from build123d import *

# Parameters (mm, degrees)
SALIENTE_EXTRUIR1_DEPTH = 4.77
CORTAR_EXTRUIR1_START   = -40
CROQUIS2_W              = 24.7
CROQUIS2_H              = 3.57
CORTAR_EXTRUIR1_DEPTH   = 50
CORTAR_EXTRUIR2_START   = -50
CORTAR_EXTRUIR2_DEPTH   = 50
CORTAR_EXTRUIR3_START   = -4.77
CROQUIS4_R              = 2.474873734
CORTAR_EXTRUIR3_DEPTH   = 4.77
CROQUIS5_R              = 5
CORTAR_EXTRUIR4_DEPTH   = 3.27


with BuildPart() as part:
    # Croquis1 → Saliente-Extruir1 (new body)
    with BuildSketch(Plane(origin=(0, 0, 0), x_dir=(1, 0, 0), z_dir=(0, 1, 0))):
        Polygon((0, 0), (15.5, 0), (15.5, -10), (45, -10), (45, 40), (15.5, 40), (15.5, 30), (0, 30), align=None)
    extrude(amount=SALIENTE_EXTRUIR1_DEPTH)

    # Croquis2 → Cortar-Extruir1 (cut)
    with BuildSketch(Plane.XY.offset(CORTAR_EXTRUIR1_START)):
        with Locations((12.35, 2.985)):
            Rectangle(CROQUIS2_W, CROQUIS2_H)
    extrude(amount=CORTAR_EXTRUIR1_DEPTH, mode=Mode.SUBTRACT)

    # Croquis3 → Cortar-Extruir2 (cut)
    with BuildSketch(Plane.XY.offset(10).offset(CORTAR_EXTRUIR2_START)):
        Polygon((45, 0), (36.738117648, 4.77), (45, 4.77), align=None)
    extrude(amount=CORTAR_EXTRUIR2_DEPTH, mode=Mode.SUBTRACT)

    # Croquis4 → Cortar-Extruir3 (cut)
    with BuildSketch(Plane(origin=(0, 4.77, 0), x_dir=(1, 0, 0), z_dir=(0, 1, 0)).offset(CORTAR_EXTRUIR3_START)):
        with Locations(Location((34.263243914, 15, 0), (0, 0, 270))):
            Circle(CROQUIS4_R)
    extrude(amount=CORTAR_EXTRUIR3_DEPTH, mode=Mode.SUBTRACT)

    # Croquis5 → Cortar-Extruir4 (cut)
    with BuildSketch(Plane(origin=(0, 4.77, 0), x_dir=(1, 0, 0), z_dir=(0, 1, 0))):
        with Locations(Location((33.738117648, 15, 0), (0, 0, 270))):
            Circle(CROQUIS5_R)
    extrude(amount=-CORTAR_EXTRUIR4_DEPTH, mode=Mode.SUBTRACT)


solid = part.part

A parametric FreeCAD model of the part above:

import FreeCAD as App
import Part
import Sketcher

V = App.Vector
Q = App.Units.Quantity

doc = App.newDocument("Part")
body = doc.addObject("PartDesign::Body", "Body")

sketch1 = doc.addObject("Sketcher::SketchObject", "Sketch")
body.addObject(sketch1)
sketch1.AttachmentSupport = (doc.XZ_Plane, [""])
sketch1.MapMode = "FlatFace"
sketch1.addGeometry([
    Part.LineSegment(V(0, 0, 0), V(16, 0, 0)),
    Part.LineSegment(V(16, 0, 0), V(16, 10, 0)),
    Part.LineSegment(V(16, 10, 0), V(45, 10, 0)),
    Part.LineSegment(V(45, 10, 0), V(45, -40, 0)),
    Part.LineSegment(V(45, -40, 0), V(16, -40, 0)),
    Part.LineSegment(V(16, -40, 0), V(16, -30, 0)),
    Part.LineSegment(V(16, -30, 0), V(0, -30, 0)),
    Part.LineSegment(V(0, -30, 0), V(0, 0, 0)),
], False)
sketch1.addConstraint([
    Sketcher.Constraint("Coincident", 0, 2, 1, 1),
    Sketcher.Constraint("Coincident", 1, 2, 2, 1),
    Sketcher.Constraint("Coincident", 2, 2, 3, 1),
    Sketcher.Constraint("Coincident", 3, 2, 4, 1),
    Sketcher.Constraint("Coincident", 4, 2, 5, 1),
    Sketcher.Constraint("Coincident", 5, 2, 6, 1),
    Sketcher.Constraint("Coincident", 6, 2, 7, 1),
    Sketcher.Constraint("Coincident", 7, 2, 0, 1),
    Sketcher.Constraint("Horizontal", 0),
    Sketcher.Constraint("Vertical", 1),
    Sketcher.Constraint("Horizontal", 2),
    Sketcher.Constraint("Vertical", 3),
    Sketcher.Constraint("Horizontal", 4),
    Sketcher.Constraint("Vertical", 5),
    Sketcher.Constraint("Horizontal", 6),
    Sketcher.Constraint("Vertical", 7),
    Sketcher.Constraint("Coincident", 7, 2, -1, 1),
    Sketcher.Constraint("Vertical", 1, 2, 4, 2),
    Sketcher.Constraint("Equal", 1, 5),
    Sketcher.Constraint("DistanceY", 1, 1, 1, 2, 10.0),
    Sketcher.Constraint("DistanceY", 3, 2, 3, 1, 50.0),
    Sketcher.Constraint("DistanceX", 0, 1, 0, 2, 15.5),
    Sketcher.Constraint("DistanceX", 2, 1, 2, 2, 29.5),
])
pad1 = doc.addObject("PartDesign::Pad", "Pad")
body.addObject(pad1)
pad1.Profile = sketch1
pad1.Length = 4.77
pad1.Reversed = True

sketch2 = doc.addObject("Sketcher::SketchObject", "Sketch001")
body.addObject(sketch2)
sketch2.AttachmentSupport = (doc.XY_Plane, [""])
sketch2.MapMode = "FlatFace"
sketch2.AttachmentOffset = App.Placement(V(0, 0, -40), App.Rotation())
sketch2.addGeometry([
    Part.LineSegment(V(0, 4.8, 0), V(0, 1.2, 0)),
    Part.LineSegment(V(0, 1.2, 0), V(24.7, 1.2, 0)),
    Part.LineSegment(V(24.7, 1.2, 0), V(24.7, 4.8, 0)),
    Part.LineSegment(V(24.7, 4.8, 0), V(0, 4.8, 0)),
], False)
sketch2.addConstraint([
    Sketcher.Constraint("Coincident", 0, 2, 1, 1),
    Sketcher.Constraint("Coincident", 1, 2, 2, 1),
    Sketcher.Constraint("Coincident", 2, 2, 3, 1),
    Sketcher.Constraint("Coincident", 3, 2, 0, 1),
    Sketcher.Constraint("Vertical", 0),
    Sketcher.Constraint("Horizontal", 1),
    Sketcher.Constraint("Vertical", 2),
    Sketcher.Constraint("Horizontal", 3),
    Sketcher.Constraint("PointOnObject", 0, 2, -2),
    Sketcher.Constraint("DistanceX", 1, 1, 1, 2, 24.7),
    Sketcher.Constraint("DistanceY", 0, 2, 0, 1, 3.57),
    Sketcher.Constraint("DistanceY", -1, 1, 0, 2, 1.2),
])
pocket1 = doc.addObject("PartDesign::Pocket", "Pocket")
body.addObject(pocket1)
pocket1.Profile = sketch2
pocket1.Length = 50
pocket1.Reversed = True

sketch3 = doc.addObject("Sketcher::SketchObject", "Sketch002")
body.addObject(sketch3)
sketch3.AttachmentSupport = (doc.XY_Plane, [""])
sketch3.MapMode = "FlatFace"
sketch3.AttachmentOffset = App.Placement(V(0, 0, -40), App.Rotation())
sketch3.addGeometry([
    Part.LineSegment(V(36.7, 4.8, 0), V(45, 0, 0)),
    Part.LineSegment(V(45, 0, 0), V(45, 4.8, 0)),
    Part.LineSegment(V(45, 4.8, 0), V(36.7, 4.8, 0)),
], False)
sketch3.addConstraint([
    Sketcher.Constraint("Coincident", 0, 2, 1, 1),
    Sketcher.Constraint("Coincident", 1, 2, 2, 1),
    Sketcher.Constraint("Coincident", 2, 2, 0, 1),
    Sketcher.Constraint("Vertical", 1),
    Sketcher.Constraint("Horizontal", 2),
    Sketcher.Constraint("PointOnObject", 0, 2, -1),
    Sketcher.Constraint("Angle", 0, Q("-30 deg")),
    Sketcher.Constraint("DistanceX", -1, 1, 0, 2, 45.0),
    Sketcher.Constraint("DistanceY", 1, 1, 1, 2, 4.77),
])
pocket2 = doc.addObject("PartDesign::Pocket", "Pocket001")
body.addObject(pocket2)
pocket2.Profile = sketch3
pocket2.Length = 50
pocket2.Reversed = True

sketch4 = doc.addObject("Sketcher::SketchObject", "Sketch003")
body.addObject(sketch4)
sketch4.AttachmentSupport = (doc.XZ_Plane, [""])
sketch4.MapMode = "FlatFace"
sketch4.addGeometry(Part.Circle(V(34.3, -15, 0), V(0, 0, 1), 2.5), False)
sketch4.addConstraint([
    Sketcher.Constraint("DistanceY", 0, 3, -1, 1, 15.0),
    Sketcher.Constraint("Diameter", 0, 4.949747),
    Sketcher.Constraint("DistanceX", -1, 1, 0, 3, 34.263244),
])
pocket3 = doc.addObject("PartDesign::Pocket", "Pocket002")
body.addObject(pocket3)
pocket3.Profile = sketch4
pocket3.Length = 4.77

sketch5 = doc.addObject("Sketcher::SketchObject", "Sketch004")
body.addObject(sketch5)
sketch5.AttachmentSupport = (doc.XZ_Plane, [""])
sketch5.MapMode = "FlatFace"
sketch5.AttachmentOffset = App.Placement(V(0, 0, -4.77), App.Rotation())
sketch5.addGeometry(Part.Circle(V(34, -15, 0), V(0, 0, 1), 5), False)
sketch5.addConstraint([
    Sketcher.Constraint("Diameter", 0, 10.0),
    Sketcher.Constraint("DistanceY", 0, 3, -1, 1, 15.0),
    Sketcher.Constraint("DistanceX", -1, 1, 0, 3, 33.738118),
])
pocket4 = doc.addObject("PartDesign::Pocket", "Pocket003")
body.addObject(pocket4)
pocket4.Profile = sketch5
pocket4.Length = 3.27
pocket4.Reversed = True

doc.recompute()
